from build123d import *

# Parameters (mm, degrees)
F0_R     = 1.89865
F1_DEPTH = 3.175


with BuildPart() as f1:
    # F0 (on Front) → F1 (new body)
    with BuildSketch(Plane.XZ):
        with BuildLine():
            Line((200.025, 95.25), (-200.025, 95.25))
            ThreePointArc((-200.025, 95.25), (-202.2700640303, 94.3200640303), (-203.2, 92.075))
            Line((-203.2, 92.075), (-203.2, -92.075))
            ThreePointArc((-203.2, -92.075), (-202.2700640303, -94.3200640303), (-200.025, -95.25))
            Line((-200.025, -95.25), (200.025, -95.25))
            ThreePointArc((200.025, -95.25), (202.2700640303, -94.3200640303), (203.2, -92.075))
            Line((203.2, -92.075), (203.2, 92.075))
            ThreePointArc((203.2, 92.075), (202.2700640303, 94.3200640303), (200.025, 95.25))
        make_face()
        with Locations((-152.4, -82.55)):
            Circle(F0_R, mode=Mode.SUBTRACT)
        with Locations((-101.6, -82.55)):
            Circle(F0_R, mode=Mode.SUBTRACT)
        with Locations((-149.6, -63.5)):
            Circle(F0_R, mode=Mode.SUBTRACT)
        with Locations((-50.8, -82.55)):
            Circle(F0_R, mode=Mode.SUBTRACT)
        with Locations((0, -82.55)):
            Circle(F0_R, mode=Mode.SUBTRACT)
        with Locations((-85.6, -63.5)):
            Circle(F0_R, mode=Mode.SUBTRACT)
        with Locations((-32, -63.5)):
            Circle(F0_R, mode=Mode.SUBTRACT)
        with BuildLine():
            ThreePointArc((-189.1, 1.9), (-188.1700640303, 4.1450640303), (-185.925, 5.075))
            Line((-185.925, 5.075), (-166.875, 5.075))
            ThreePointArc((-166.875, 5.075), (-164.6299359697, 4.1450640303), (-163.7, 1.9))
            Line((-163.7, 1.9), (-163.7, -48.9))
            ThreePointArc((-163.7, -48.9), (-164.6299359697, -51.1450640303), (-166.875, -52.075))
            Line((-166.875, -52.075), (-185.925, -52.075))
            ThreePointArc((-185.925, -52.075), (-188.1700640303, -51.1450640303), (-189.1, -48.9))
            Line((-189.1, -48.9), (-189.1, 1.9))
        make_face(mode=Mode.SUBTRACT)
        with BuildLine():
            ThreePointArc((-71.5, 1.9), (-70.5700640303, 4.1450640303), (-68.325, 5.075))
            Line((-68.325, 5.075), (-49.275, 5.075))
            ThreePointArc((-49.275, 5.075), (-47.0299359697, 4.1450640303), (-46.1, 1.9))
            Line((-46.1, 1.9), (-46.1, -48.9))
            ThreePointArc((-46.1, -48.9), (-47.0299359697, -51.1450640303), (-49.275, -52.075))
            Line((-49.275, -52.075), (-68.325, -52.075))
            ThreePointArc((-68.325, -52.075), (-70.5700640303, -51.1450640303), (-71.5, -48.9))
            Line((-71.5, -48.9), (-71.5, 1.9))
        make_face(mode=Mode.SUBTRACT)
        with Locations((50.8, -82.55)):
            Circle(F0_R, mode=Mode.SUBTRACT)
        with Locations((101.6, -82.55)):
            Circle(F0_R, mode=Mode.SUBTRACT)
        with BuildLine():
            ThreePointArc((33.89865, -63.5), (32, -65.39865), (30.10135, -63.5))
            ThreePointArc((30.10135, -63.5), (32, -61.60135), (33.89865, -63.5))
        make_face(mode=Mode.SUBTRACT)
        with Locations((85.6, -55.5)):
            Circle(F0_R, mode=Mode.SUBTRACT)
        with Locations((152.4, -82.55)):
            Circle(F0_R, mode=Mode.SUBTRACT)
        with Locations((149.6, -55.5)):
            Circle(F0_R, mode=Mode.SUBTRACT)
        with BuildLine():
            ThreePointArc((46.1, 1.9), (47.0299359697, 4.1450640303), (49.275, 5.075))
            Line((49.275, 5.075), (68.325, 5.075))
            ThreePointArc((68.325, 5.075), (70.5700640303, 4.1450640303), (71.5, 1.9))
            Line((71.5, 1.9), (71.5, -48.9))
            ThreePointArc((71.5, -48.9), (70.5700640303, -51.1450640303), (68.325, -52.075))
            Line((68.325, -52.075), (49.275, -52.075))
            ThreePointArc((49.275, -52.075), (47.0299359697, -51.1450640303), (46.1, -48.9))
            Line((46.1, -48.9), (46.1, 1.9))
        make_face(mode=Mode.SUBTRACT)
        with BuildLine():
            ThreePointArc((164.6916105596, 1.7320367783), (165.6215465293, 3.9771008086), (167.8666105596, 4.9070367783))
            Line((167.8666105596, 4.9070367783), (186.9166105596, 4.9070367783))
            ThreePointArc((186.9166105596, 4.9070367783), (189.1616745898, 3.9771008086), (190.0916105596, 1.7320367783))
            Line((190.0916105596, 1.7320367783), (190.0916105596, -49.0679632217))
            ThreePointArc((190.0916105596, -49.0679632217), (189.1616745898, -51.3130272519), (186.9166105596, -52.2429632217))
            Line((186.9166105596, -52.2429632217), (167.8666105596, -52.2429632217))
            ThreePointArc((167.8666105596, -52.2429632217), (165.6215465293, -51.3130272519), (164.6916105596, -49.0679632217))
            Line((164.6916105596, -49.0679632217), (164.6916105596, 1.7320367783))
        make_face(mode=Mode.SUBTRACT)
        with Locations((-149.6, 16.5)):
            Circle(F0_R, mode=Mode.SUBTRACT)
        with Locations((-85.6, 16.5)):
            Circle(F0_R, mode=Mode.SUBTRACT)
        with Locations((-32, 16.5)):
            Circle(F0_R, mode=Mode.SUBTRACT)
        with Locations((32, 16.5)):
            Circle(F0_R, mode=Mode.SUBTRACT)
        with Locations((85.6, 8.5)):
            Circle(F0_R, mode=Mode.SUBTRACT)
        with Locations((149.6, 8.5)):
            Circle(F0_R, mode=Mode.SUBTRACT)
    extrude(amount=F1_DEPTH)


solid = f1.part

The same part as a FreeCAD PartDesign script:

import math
import FreeCAD as App
import Part
import Sketcher

V = App.Vector
Q = App.Units.Quantity

doc = App.newDocument("Part")
body = doc.addObject("PartDesign::Body", "Body")

# Sketch on XZ plane
sketch1 = body.newObject("Sketcher::SketchObject", "Sketch")
sketch1.AttachmentSupport = (doc.getObject("XZ_Plane"), [""])
sketch1.MapMode = "FlatFace"
sketch1.addGeometry([
    Part.LineSegment(V(200, 95.2, 0), V(-200, 95.2, 0)),  # 0
    Part.ArcOfCircle(Part.Circle(V(-200, 92.1, 0), V(0, 0, 1), 3.2), math.radians(90), math.radians(180)),  # 1
    Part.LineSegment(V(-203.2, 92.1, 0), V(-203.2, -92.1, 0)),  # 2
    Part.ArcOfCircle(Part.Circle(V(-200, -92.1, 0), V(0, 0, 1), 3.2), math.radians(180), math.radians(270)),  # 3
    Part.LineSegment(V(-200, -95.2, 0), V(200, -95.2, 0)),  # 4
    Part.ArcOfCircle(Part.Circle(V(200, -92.1, 0), V(0, 0, 1), 3.2), math.radians(-90), math.radians(0)),  # 5
    Part.LineSegment(V(203.2, -92.1, 0), V(203.2, 92.1, 0)),  # 6
    Part.ArcOfCircle(Part.Circle(V(200, 92.1, 0), V(0, 0, 1), 3.2), math.radians(0), math.radians(90)),  # 7
    Part.Circle(V(-152.4, -82.5, 0), V(0, 0, 1), 1.9),  # 8
    Part.Circle(V(-101.6, -82.5, 0), V(0, 0, 1), 1.9),  # 9
    Part.Circle(V(-149.6, -63.5, 0), V(0, 0, 1), 1.9),  # 10
    Part.Circle(V(-50.8, -82.5, 0), V(0, 0, 1), 1.9),  # 11
    Part.Circle(V(0, -82.5, 0), V(0, 0, 1), 1.9),  # 12
    Part.Circle(V(-85.6, -63.5, 0), V(0, 0, 1), 1.9),  # 13
    Part.Circle(V(-32, -63.5, 0), V(0, 0, 1), 1.9),  # 14
    Part.Circle(V(50.8, -82.5, 0), V(0, 0, 1), 1.9),  # 15
    Part.Circle(V(32, -63.5, 0), V(0, 0, 1), 1.9),  # 16
    Part.Circle(V(101.6, -82.5, 0), V(0, 0, 1), 1.9),  # 17
    Part.Circle(V(152.4, -82.5, 0), V(0, 0, 1), 1.9),  # 18
    Part.Circle(V(85.6, -55.5, 0), V(0, 0, 1), 1.9),  # 19
    Part.Circle(V(149.6, -55.5, 0), V(0, 0, 1), 1.9),  # 20
    Part.LineSegment(V(-189.1, -48.9, 0), V(-189.1, 1.9, 0)),  # 21
    Part.ArcOfCircle(Part.Circle(V(-185.9, 1.9, 0), V(0, 0, 1), 3.2), math.radians(90), math.radians(180)),  # 22
    Part.LineSegment(V(-185.9, 5.1, 0), V(-166.9, 5.1, 0)),  # 23
    Part.ArcOfCircle(Part.Circle(V(-166.9, 1.9, 0), V(0, 0, 1), 3.2), math.radians(0), math.radians(90)),  # 24
    Part.LineSegment(V(-163.7, 1.9, 0), V(-163.7, -48.9, 0)),  # 25
    Part.ArcOfCircle(Part.Circle(V(-166.9, -48.9, 0), V(0, 0, 1), 3.2), math.radians(-90), math.radians(0)),  # 26
    Part.LineSegment(V(-166.9, -52.1, 0), V(-185.9, -52.1, 0)),  # 27
    Part.ArcOfCircle(Part.Circle(V(-185.9, -48.9, 0), V(0, 0, 1), 3.2), math.radians(180), math.radians(270)),  # 28
    Part.LineSegment(V(-71.5, -48.9, 0), V(-71.5, 1.9, 0)),  # 29
    Part.ArcOfCircle(Part.Circle(V(-68.3, 1.9, 0), V(0, 0, 1), 3.2), math.radians(90), math.radians(180)),  # 30
    Part.LineSegment(V(-68.3, 5.1, 0), V(-49.3, 5.1, 0)),  # 31
    Part.ArcOfCircle(Part.Circle(V(-49.3, 1.9, 0), V(0, 0, 1), 3.2), math.radians(0), math.radians(90)),  # 32
    Part.LineSegment(V(-46.1, 1.9, 0), V(-46.1, -48.9, 0)),  # 33
    Part.ArcOfCircle(Part.Circle(V(-49.3, -48.9, 0), V(0, 0, 1), 3.2), math.radians(-90), math.radians(0)),  # 34
    Part.LineSegment(V(-49.3, -52.1, 0), V(-68.3, -52.1, 0)),  # 35
    Part.ArcOfCircle(Part.Circle(V(-68.3, -48.9, 0), V(0, 0, 1), 3.2), math.radians(180), math.radians(270)),  # 36
    Part.Circle(V(-149.6, 16.5, 0), V(0, 0, 1), 1.9),  # 37
    Part.Circle(V(-85.6, 16.5, 0), V(0, 0, 1), 1.9),  # 38
    Part.Circle(V(-32, 16.5, 0), V(0, 0, 1), 1.9),  # 39
    Part.LineSegment(V(46.1, -48.9, 0), V(46.1, 1.9, 0)),  # 40
    Part.ArcOfCircle(Part.Circle(V(49.3, 1.9, 0), V(0, 0, 1), 3.2), math.radians(90), math.radians(180)),  # 41
    Part.LineSegment(V(49.3, 5.1, 0), V(68.3, 5.1, 0)),  # 42
    Part.ArcOfCircle(Part.Circle(V(68.3, 1.9, 0), V(0, 0, 1), 3.2), math.radians(0), math.radians(90)),  # 43
    Part.LineSegment(V(71.5, 1.9, 0), V(71.5, -48.9, 0)),  # 44
    Part.ArcOfCircle(Part.Circle(V(68.3, -48.9, 0), V(0, 0, 1), 3.2), math.radians(-90), math.radians(0)),  # 45
    Part.LineSegment(V(68.3, -52.1, 0), V(49.3, -52.1, 0)),  # 46
    Part.ArcOfCircle(Part.Circle(V(49.3, -48.9, 0), V(0, 0, 1), 3.2), math.radians(180), math.radians(270)),  # 47
    Part.LineSegment(V(164.7, -49.1, 0), V(164.7, 1.7, 0)),  # 48
    Part.ArcOfCircle(Part.Circle(V(167.9, 1.7, 0), V(0, 0, 1), 3.2), math.radians(90), math.radians(180)),  # 49
    Part.LineSegment(V(167.9, 4.9, 0), V(186.9, 4.9, 0)),  # 50
    Part.ArcOfCircle(Part.Circle(V(186.9, 1.7, 0), V(0, 0, 1), 3.2), math.radians(0), math.radians(90)),  # 51
    Part.LineSegment(V(190.1, 1.7, 0), V(190.1, -49.1, 0)),  # 52
    Part.ArcOfCircle(Part.Circle(V(186.9, -49.1, 0), V(0, 0, 1), 3.2), math.radians(-90), math.radians(0)),  # 53
    Part.LineSegment(V(186.9, -52.2, 0), V(167.9, -52.2, 0)),  # 54
    Part.ArcOfCircle(Part.Circle(V(167.9, -49.1, 0), V(0, 0, 1), 3.2), math.radians(180), math.radians(270)),  # 55
    Part.Circle(V(32, 16.5, 0), V(0, 0, 1), 1.9),  # 56
    Part.Circle(V(85.6, 8.5, 0), V(0, 0, 1), 1.9),  # 57
    Part.Circle(V(149.6, 8.5, 0), V(0, 0, 1), 1.9),  # 58
], False)
sketch1.addConstraint([
    Sketcher.Constraint("Tangent", 0, 2, 1, 1),
    Sketcher.Constraint("Tangent", 1, 2, 2, 1),
    Sketcher.Constraint("Tangent", 2, 2, 3, 1),
    Sketcher.Constraint("Tangent", 3, 2, 4, 1),
    Sketcher.Constraint("Tangent", 4, 2, 5, 1),
    Sketcher.Constraint("Tangent", 5, 2, 6, 1),
    Sketcher.Constraint("Tangent", 6, 2, 7, 1),
    Sketcher.Constraint("Tangent", 7, 2, 0, 1),
    Sketcher.Constraint("Tangent", 21, 2, 22, 2),
    Sketcher.Constraint("Tangent", 22, 1, 23, 1),
    Sketcher.Constraint("Tangent", 23, 2, 24, 2),
    Sketcher.Constraint("Tangent", 24, 1, 25, 1),
    Sketcher.Constraint("Tangent", 25, 2, 26, 2),
    Sketcher.Constraint("Tangent", 26, 1, 27, 1),
    Sketcher.Constraint("Tangent", 27, 2, 28, 2),
    Sketcher.Constraint("Tangent", 28, 1, 21, 1),
    Sketcher.Constraint("Tangent", 29, 2, 30, 2),
    Sketcher.Constraint("Tangent", 30, 1, 31, 1),
    Sketcher.Constraint("Tangent", 31, 2, 32, 2),
    Sketcher.Constraint("Tangent", 32, 1, 33, 1),
    Sketcher.Constraint("Tangent", 33, 2, 34, 2),
    Sketcher.Constraint("Tangent", 34, 1, 35, 1),
    Sketcher.Constraint("Tangent", 35, 2, 36, 2),
    Sketcher.Constraint("Tangent", 36, 1, 29, 1),
    Sketcher.Constraint("Tangent", 40, 2, 41, 2),
    Sketcher.Constraint("Tangent", 41, 1, 42, 1),
    Sketcher.Constraint("Tangent", 42, 2, 43, 2),
    Sketcher.Constraint("Tangent", 43, 1, 44, 1),
    Sketcher.Constraint("Tangent", 44, 2, 45, 2),
    Sketcher.Constraint("Tangent", 45, 1, 46, 1),
    Sketcher.Constraint("Tangent", 46, 2, 47, 2),
    Sketcher.Constraint("Tangent", 47, 1, 40, 1),
    Sketcher.Constraint("Tangent", 48, 2, 49, 2),
    Sketcher.Constraint("Tangent", 49, 1, 50, 1),
    Sketcher.Constraint("Tangent", 50, 2, 51, 2),
    Sketcher.Constraint("Tangent", 51, 1, 52, 1),
    Sketcher.Constraint("Tangent", 52, 2, 53, 2),
    Sketcher.Constraint("Tangent", 53, 1, 54, 1),
    Sketcher.Constraint("Tangent", 54, 2, 55, 2),
    Sketcher.Constraint("Tangent", 55, 1, 48, 1),
    Sketcher.Constraint("Horizontal", 0),
    Sketcher.Constraint("Vertical", 2),
    Sketcher.Constraint("Horizontal", 4),
    Sketcher.Constraint("Vertical", 6),
    Sketcher.Constraint("Vertical", 21),
    Sketcher.Constraint("Horizontal", 23),
    Sketcher.Constraint("Vertical", 25),
    Sketcher.Constraint("Horizontal", 27),
    Sketcher.Constraint("Vertical", 29),
    Sketcher.Constraint("Horizontal", 31),
    Sketcher.Constraint("Vertical", 33),
    Sketcher.Constraint("Horizontal", 35),
    Sketcher.Constraint("Vertical", 40),
    Sketcher.Constraint("Horizontal", 42),
    Sketcher.Constraint("Vertical", 44),
    Sketcher.Constraint("Horizontal", 46),
    Sketcher.Constraint("Vertical", 48),
    Sketcher.Constraint("Horizontal", 50),
    Sketcher.Constraint("Vertical", 52),
    Sketcher.Constraint("Horizontal", 54),
    Sketcher.Constraint("Equal", 1, 3),
    Sketcher.Constraint("Equal", 3, 5),
    Sketcher.Constraint("Equal", 5, 7),
    Sketcher.Constraint("Equal", 8, 9),
    Sketcher.Constraint("Equal", 9, 10),
    Sketcher.Constraint("Equal", 10, 11),
    Sketcher.Constraint("Equal", 11, 12),
    Sketcher.Constraint("Equal", 12, 13),
    Sketcher.Constraint("Equal", 13, 14),
    Sketcher.Constraint("Equal", 14, 15),
    Sketcher.Constraint("Equal", 15, 16),
    Sketcher.Constraint("Equal", 16, 17),
    Sketcher.Constraint("Equal", 17, 18),
    Sketcher.Constraint("Equal", 18, 19),
    Sketcher.Constraint("Equal", 19, 20),
    Sketcher.Constraint("Equal", 7, 22),
    Sketcher.Constraint("Equal", 22, 24),
    Sketcher.Constraint("Equal", 24, 26),
    Sketcher.Constraint("Equal", 26, 28),
    Sketcher.Constraint("Equal", 28, 30),
    Sketcher.Constraint("Equal", 30, 32),
    Sketcher.Constraint("Equal", 32, 34),
    Sketcher.Constraint("Equal", 34, 36),
    Sketcher.Constraint("Equal", 20, 37),
    Sketcher.Constraint("Equal", 37, 38),
    Sketcher.Constraint("Equal", 38, 39),
    Sketcher.Constraint("Equal", 36, 41),
    Sketcher.Constraint("Equal", 41, 43),
    Sketcher.Constraint("Equal", 43, 45),
    Sketcher.Constraint("Equal", 45, 47),
    Sketcher.Constraint("Equal", 47, 49),
    Sketcher.Constraint("Equal", 49, 51),
    Sketcher.Constraint("Equal", 51, 53),
    Sketcher.Constraint("Equal", 53, 55),
    Sketcher.Constraint("Equal", 39, 56),
    Sketcher.Constraint("Equal", 56, 57),
    Sketcher.Constraint("Equal", 57, 58),
    Sketcher.Constraint("Symmetric", 1, 3, 5, 3, -1, 1),
    Sketcher.Constraint("Symmetric", 11, 3, 15, 3, -2),
    Sketcher.Constraint("Symmetric", 14, 3, 16, 3, -2),
    Sketcher.Constraint("Symmetric", 9, 3, 17, 3, -2),
    Sketcher.Constraint("Symmetric", 8, 3, 18, 3, -2),
    Sketcher.Constraint("Symmetric", 32, 3, 41, 3, -2),
    Sketcher.Constraint("Symmetric", 36, 3, 45, 3, -2),
    Sketcher.Constraint("Symmetric", 39, 3, 56, 3, -2),
    Sketcher.Constraint("PointOnObject", 12, 3, -2),
    Sketcher.Constraint("Horizontal", 8, 3, 9, 3),
    Sketcher.Constraint("Horizontal", 9, 3, 11, 3),
    Sketcher.Constraint("Horizontal", 11, 3, 12, 3),
    Sketcher.Constraint("Horizontal", 10, 3, 13, 3),
    Sketcher.Constraint("Horizontal", 13, 3, 14, 3),
    Sketcher.Constraint("Horizontal", 19, 3, 20, 3),
    Sketcher.Constraint("Horizontal", 24, 3, 30, 3),
    Sketcher.Constraint("Horizontal", 28, 3, 34, 3),
    Sketcher.Constraint("Horizontal", 37, 3, 38, 3),
    Sketcher.Constraint("Horizontal", 38, 3, 39, 3),
    Sketcher.Constraint("Horizontal", 57, 3, 58, 3),
    Sketcher.Constraint("Vertical", 10, 3, 37, 3),
    Sketcher.Constraint("Vertical", 13, 3, 38, 3),
    Sketcher.Constraint("Vertical", 14, 3, 39, 3),
    Sketcher.Constraint("Vertical", 19, 3, 57, 3),
    Sketcher.Constraint("Vertical", 20, 3, 58, 3),
    Sketcher.Constraint("Equal", 27, 31),
    Sketcher.Constraint("Equal", 46, 50),
    Sketcher.Constraint("Equal", 44, 48),
    Sketcher.Constraint("DistanceY", 21, 1, 21, 2, Q("2 in")),
    Sketcher.Constraint("DistanceX", 8, 3, -1, 1, Q("6 in")),
    Sketcher.Constraint("DistanceX", 9, 3, -1, 1, Q("4 in")),
    Sketcher.Constraint("DistanceX", 11, 3, -1, 1, Q("2 in")),
    Sketcher.Constraint("DistanceX", 1, 2, -1, 1, Q("8 in")),
    Sketcher.Constraint("Radius", 1, Q("0.125 in")),
    Sketcher.Constraint("Diameter", 8, Q("0.1495 in")),
    Sketcher.Constraint("DistanceX", 23, 1, 23, 2, Q("0.75 in")),
    Sketcher.Constraint("DistanceY", 2, 2, 2, 1, Q("7.25 in")),
    Sketcher.Constraint("DistanceY", 10, 3, -1, 1, Q("2.5 in")),
    Sketcher.Constraint("DistanceY", 8, 3, -1, 1, Q("3.25 in")),
    Sketcher.Constraint("DistanceX", 10, 3, -1, 1, 149.6),
    Sketcher.Constraint("DistanceX", 13, 3, -1, 1, 85.6),
    Sketcher.Constraint("DistanceX", 14, 3, -1, 1, 32.0),
    Sketcher.Constraint("DistanceX", -1, 1, 19, 3, 85.6),
    Sketcher.Constraint("DistanceY", 19, 3, -1, 1, 55.5),
    Sketcher.Constraint("DistanceX", -1, 1, 20, 3, 149.6),
    Sketcher.Constraint("DistanceX", 22, 3, -1, 1, 185.925),
    Sketcher.Constraint("DistanceY", -1, 1, 22, 3, 1.9),
    Sketcher.Constraint("DistanceX", 30, 3, -1, 1, 68.325),
    Sketcher.Constraint("DistanceY", -1, 1, 37, 3, 16.5),
    Sketcher.Constraint("DistanceY", -1, 1, 57, 3, 8.5),
    Sketcher.Constraint("DistanceX", -1, 1, 49, 3, 167.866611),
    Sketcher.Constraint("DistanceY", -1, 1, 49, 3, 1.732037),
])
pad1 = body.newObject("PartDesign::Pad", "Pad")
pad1.Profile = sketch1
pad1.Length = Q("0.125 in")

doc.recompute()
